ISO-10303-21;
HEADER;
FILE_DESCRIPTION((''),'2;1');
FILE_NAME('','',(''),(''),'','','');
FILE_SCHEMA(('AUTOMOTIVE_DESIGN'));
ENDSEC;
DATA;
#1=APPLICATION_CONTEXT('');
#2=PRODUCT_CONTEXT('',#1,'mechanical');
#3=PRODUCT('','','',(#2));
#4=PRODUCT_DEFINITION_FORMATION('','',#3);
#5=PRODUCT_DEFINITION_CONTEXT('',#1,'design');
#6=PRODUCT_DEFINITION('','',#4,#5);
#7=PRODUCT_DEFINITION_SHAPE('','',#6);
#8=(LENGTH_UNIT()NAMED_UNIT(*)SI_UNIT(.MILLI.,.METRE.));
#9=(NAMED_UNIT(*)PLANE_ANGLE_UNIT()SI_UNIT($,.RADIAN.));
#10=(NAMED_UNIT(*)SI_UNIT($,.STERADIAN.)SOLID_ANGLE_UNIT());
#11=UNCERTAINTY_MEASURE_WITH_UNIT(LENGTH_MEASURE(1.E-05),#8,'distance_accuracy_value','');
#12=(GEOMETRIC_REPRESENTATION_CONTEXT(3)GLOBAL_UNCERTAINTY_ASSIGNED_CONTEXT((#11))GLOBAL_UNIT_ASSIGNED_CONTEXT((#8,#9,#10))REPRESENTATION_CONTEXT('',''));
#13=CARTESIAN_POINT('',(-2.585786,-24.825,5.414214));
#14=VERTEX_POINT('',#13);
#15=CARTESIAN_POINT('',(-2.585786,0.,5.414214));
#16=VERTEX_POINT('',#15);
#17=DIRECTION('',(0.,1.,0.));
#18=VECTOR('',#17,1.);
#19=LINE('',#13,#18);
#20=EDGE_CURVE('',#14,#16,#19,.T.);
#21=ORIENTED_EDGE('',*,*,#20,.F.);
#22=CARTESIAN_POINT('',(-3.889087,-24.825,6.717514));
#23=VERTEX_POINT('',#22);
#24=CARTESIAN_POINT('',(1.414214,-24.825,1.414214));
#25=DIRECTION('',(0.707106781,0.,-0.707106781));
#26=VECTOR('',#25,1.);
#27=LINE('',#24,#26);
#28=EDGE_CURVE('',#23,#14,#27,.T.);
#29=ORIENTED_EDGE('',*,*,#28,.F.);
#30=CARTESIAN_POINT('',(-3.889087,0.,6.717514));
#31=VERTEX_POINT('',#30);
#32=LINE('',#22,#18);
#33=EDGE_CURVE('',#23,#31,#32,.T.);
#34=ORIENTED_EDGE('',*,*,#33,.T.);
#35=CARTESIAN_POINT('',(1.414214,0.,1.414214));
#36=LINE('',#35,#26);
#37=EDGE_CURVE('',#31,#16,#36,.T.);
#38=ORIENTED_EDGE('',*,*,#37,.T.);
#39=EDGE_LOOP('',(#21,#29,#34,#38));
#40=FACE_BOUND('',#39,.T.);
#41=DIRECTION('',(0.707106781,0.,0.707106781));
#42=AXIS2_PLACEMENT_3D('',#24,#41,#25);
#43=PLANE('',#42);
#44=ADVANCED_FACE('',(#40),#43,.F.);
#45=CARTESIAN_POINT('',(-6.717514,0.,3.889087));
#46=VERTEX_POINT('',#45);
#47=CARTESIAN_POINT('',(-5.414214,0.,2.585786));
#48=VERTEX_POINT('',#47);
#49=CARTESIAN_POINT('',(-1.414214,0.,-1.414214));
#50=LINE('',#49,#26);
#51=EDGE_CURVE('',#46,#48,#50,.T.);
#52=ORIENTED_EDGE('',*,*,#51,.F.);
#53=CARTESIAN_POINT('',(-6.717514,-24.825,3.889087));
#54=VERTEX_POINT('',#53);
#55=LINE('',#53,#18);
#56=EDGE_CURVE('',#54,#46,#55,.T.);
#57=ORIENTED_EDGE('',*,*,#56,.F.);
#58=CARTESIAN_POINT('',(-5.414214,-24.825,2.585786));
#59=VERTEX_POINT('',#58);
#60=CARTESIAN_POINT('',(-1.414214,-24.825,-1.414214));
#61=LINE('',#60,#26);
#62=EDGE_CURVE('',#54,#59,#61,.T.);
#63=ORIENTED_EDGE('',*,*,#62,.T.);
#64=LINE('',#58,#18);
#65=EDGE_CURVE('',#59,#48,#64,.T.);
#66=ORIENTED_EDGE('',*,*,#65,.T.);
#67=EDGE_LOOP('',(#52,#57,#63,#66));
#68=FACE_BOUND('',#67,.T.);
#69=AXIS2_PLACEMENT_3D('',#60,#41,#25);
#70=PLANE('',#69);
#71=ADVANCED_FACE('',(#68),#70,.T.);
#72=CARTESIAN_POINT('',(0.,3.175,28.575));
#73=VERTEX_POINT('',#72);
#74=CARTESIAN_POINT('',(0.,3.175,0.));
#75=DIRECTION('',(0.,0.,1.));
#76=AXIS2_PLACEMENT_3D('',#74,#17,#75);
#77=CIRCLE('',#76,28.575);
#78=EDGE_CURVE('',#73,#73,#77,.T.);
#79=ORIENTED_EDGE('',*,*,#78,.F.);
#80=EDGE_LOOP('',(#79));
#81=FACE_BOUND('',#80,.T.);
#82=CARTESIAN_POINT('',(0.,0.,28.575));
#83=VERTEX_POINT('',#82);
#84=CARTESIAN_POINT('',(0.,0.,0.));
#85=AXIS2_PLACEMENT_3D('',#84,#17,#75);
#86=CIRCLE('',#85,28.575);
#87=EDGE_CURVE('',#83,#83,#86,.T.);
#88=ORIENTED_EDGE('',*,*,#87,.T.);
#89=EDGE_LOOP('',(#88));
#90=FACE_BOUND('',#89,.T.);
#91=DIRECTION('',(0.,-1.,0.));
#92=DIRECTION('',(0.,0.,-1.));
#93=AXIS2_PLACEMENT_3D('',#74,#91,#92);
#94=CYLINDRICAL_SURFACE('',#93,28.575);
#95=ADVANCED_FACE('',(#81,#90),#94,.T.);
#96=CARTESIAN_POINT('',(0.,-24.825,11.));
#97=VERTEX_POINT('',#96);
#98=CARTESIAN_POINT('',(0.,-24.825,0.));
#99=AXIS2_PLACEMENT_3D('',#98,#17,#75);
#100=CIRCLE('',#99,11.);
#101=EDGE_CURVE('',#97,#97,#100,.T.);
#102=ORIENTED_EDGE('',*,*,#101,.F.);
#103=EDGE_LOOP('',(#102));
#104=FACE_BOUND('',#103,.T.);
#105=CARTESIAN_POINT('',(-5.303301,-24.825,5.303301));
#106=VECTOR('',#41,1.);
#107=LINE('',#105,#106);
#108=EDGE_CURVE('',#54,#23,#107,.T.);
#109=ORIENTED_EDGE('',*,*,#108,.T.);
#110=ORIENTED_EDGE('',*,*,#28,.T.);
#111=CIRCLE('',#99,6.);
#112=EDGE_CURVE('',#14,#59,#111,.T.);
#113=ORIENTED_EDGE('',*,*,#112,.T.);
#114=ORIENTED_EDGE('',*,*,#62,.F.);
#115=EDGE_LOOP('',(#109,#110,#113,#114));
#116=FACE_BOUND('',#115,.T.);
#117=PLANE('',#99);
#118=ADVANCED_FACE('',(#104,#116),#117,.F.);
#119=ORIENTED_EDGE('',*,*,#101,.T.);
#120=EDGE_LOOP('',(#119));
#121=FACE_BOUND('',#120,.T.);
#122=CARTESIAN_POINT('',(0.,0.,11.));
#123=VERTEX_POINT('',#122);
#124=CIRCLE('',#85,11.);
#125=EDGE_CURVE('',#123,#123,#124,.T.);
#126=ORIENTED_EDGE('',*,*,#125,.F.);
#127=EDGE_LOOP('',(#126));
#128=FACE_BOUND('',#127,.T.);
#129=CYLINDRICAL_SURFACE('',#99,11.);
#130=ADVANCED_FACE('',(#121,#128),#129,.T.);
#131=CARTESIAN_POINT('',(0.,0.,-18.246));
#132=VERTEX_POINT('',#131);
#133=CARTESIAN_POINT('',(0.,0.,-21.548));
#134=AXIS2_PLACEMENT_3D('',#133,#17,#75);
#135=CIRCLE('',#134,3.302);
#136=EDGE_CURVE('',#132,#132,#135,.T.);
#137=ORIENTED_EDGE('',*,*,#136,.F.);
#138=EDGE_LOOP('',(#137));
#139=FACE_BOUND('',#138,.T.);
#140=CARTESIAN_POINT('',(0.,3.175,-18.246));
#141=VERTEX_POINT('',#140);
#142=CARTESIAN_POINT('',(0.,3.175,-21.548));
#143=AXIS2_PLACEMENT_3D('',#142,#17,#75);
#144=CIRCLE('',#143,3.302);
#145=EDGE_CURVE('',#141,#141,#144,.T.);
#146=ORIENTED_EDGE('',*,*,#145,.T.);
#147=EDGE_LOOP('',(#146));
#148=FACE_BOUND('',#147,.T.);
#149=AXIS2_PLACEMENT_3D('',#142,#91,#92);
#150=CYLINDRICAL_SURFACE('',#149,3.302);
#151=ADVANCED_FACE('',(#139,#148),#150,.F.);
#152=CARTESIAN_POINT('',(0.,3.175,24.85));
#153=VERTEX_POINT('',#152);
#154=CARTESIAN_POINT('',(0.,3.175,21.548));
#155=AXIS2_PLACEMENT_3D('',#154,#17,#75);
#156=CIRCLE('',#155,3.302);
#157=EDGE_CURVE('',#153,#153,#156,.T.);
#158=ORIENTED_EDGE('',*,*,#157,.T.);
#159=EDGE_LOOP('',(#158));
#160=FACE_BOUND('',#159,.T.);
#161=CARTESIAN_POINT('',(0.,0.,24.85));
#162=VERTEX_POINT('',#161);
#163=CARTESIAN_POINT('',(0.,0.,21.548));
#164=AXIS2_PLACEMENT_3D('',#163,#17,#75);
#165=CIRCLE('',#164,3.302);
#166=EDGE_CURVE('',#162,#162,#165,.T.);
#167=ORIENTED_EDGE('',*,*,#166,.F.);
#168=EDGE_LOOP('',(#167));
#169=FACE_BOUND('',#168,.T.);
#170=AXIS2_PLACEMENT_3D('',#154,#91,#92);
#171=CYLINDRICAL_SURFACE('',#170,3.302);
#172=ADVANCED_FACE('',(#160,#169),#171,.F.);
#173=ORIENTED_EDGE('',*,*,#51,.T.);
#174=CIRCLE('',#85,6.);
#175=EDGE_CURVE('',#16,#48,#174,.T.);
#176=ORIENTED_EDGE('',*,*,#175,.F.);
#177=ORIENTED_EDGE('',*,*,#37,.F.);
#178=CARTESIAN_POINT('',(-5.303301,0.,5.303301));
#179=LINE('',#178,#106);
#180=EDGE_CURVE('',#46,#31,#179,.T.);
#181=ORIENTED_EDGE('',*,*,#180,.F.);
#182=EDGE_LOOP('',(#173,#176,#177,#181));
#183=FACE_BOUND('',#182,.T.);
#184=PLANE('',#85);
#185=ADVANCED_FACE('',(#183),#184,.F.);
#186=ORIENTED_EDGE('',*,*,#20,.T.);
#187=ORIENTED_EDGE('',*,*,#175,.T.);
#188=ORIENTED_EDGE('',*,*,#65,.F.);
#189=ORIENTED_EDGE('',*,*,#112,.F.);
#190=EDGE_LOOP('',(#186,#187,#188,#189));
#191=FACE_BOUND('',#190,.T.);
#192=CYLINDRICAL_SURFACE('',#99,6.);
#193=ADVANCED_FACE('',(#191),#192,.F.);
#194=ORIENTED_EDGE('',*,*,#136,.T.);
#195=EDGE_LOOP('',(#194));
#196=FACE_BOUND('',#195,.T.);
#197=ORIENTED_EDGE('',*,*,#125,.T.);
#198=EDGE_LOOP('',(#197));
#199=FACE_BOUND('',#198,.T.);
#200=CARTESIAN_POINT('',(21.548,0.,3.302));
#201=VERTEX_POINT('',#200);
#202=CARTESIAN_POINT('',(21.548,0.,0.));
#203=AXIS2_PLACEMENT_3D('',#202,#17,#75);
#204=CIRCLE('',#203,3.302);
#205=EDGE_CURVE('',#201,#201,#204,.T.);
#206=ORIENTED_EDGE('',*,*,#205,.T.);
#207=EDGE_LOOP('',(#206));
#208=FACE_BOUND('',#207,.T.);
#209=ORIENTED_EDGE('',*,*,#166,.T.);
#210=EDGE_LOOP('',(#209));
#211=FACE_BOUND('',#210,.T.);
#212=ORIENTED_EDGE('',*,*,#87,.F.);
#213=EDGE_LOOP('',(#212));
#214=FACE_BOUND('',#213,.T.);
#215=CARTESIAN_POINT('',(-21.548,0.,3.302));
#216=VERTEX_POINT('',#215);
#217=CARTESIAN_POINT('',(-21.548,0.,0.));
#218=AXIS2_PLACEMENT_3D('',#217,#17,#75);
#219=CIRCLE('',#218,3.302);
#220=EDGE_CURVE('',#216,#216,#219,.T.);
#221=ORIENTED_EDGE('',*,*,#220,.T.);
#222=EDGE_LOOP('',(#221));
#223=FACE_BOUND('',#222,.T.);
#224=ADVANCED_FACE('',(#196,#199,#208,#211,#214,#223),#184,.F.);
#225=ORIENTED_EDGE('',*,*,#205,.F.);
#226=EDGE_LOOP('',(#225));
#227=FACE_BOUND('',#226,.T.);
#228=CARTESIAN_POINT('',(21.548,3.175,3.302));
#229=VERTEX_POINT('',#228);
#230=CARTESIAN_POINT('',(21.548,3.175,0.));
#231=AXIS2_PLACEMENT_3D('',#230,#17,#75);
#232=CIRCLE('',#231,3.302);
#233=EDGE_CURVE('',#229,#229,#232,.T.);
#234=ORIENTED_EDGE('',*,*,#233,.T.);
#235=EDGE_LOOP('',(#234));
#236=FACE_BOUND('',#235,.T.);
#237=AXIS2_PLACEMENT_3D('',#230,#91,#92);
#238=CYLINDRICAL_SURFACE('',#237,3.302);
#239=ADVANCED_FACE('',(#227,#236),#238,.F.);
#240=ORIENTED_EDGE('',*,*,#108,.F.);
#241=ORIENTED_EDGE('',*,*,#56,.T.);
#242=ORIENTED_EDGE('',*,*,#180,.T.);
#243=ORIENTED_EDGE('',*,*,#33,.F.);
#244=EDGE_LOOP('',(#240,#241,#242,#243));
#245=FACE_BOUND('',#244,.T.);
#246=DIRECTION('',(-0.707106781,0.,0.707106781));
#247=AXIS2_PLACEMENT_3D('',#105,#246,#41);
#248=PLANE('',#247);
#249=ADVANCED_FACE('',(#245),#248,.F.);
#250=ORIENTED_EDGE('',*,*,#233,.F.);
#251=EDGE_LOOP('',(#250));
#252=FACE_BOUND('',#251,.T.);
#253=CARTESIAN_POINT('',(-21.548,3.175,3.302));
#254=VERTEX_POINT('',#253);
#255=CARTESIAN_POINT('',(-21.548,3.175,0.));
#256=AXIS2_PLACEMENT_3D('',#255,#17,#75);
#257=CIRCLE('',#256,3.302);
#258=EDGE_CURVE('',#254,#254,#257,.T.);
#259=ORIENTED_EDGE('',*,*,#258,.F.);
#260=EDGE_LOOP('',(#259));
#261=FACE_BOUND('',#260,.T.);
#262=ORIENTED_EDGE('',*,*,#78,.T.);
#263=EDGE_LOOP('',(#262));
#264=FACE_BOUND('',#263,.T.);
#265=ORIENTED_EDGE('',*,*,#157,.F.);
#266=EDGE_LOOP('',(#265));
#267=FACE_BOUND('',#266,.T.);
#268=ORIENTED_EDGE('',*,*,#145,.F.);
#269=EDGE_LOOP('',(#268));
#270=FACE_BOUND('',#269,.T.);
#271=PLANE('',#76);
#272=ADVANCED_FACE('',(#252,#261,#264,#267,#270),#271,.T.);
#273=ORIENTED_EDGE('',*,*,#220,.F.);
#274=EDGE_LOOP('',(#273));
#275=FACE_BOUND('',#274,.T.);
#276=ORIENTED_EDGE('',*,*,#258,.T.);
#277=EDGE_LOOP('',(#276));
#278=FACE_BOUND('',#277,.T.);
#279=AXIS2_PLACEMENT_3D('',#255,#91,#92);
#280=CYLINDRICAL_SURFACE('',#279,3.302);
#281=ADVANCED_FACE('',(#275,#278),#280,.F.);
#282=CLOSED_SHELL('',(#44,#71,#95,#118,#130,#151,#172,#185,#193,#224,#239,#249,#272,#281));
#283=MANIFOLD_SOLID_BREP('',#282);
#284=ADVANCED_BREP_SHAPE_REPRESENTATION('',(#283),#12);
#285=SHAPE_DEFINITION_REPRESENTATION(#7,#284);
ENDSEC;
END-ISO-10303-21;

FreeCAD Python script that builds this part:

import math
import FreeCAD as App
import Part
import Sketcher
from FreeCAD import Vector
Q = App.Units.Quantity

doc = App.newDocument("Part")
params = doc.addObject("Spreadsheet::Sheet", "Params")
for row, (alias, value) in enumerate([
    ("sketch1_diameter", "22 mm"),
    ("sketch1_diameter2", "57.15 mm"),
    ("pad1_length", "3.175 mm"),
    ("sketch2_diameter", "22 mm"),
    ("pad2_length", "3.175 mm"),
    ("sketch3_diameter", "22 mm"),
    ("sketch3_radius", "6 mm"),
    ("sketch3_length", "4 mm"),
    ("pad3_length", "24.825 mm"),
], start=1):
    params.set(f"A{row}", alias)
    params.set(f"B{row}", "=" + value)
    params.setAlias(f"B{row}", alias)

body = doc.addObject("PartDesign::Body", "Body")

sketch1 = body.newObject("Sketcher::SketchObject", "Sketch")
sketch1.AttachmentSupport = (doc.getObject("XZ_Plane"), [""])
sketch1.MapMode = "FlatFace"
sketch1.addGeometry(Part.Circle(Vector(0, 0, 0), Vector(0, 0, 1), 28.6), False)
sketch1.addGeometry(Part.Circle(Vector(0, 21.5, 0), Vector(0, 0, 1), 3.3), False)
sketch1.addGeometry(Part.Circle(Vector(-21.5, 0, 0), Vector(0, 0, 1), 3.3), False)
sketch1.addGeometry(Part.Circle(Vector(0, 0, 0), Vector(0, 0, 1), 11), False)
sketch1.addGeometry(Part.Circle(Vector(21.5, 0, 0), Vector(0, 0, 1), 3.3), False)
sketch1.addGeometry(Part.Circle(Vector(0, -21.5, 0), Vector(0, 0, 1), 3.3), False)
sketch1.addConstraint(Sketcher.Constraint("Coincident", 0, 3, -1, 1))
sketch1.addConstraint(Sketcher.Constraint("Coincident", 3, 3, -1, 1))
sketch1.addConstraint(Sketcher.Constraint("Equal", 1, 2))
sketch1.addConstraint(Sketcher.Constraint("Equal", 2, 4))
sketch1.addConstraint(Sketcher.Constraint("Equal", 4, 5))
sketch1.addConstraint(Sketcher.Constraint("Symmetric", 2, 3, 4, 3, -1, 1))
sketch1.addConstraint(Sketcher.Constraint("Symmetric", 1, 3, 5, 3, -1, 1))
sketch1.addConstraint(Sketcher.Constraint("PointOnObject", 1, 3, -2))
sketch1.addConstraint(Sketcher.Constraint("PointOnObject", 2, 3, -1))
sketch1.addConstraint(Sketcher.Constraint("Diameter", 3, 22.0))
sketch1.addConstraint(Sketcher.Constraint("Diameter", 0, 57.15))
sketch1.addConstraint(Sketcher.Constraint("Diameter", 1, 6.604))
sketch1.addConstraint(Sketcher.Constraint("DistanceY", -1, 1, 1, 3, 21.548))
sketch1.addConstraint(Sketcher.Constraint("DistanceX", 2, 3, -1, 1, 21.548))
sketch1.setExpression("Constraints[9]", "Params.sketch1_diameter")
sketch1.setExpression("Constraints[10]", "Params.sketch1_diameter2")
pad1 = body.newObject("PartDesign::Pad", "Pad")
pad1.Profile = sketch1
pad1.setExpression("Length", "Params.pad1_length")
pad1.Reversed = True

sketch2 = body.newObject("Sketcher::SketchObject", "Sketch001")
sketch2.AttachmentSupport = (doc.getObject("XZ_Plane"), [""])
sketch2.MapMode = "FlatFace"
sketch2.addGeometry(Part.Circle(Vector(0, 0, 0), Vector(0, 0, 1), 11), False)
sketch2.addConstraint(Sketcher.Constraint("Coincident", 0, 3, -1, 1))
sketch2.addConstraint(Sketcher.Constraint("Diameter", 0, 22.0))
sketch2.setExpression("Constraints[1]", "Params.sketch2_diameter")
pad2 = body.newObject("PartDesign::Pad", "Pad001")
pad2.Profile = sketch2
pad2.setExpression("Length", "Params.pad2_length")
pad2.Reversed = True

sketch3 = body.newObject("Sketcher::SketchObject", "Sketch002")
sketch3.AttachmentSupport = (doc.getObject("XZ_Plane"), [""])
sketch3.MapMode = "FlatFace"
sketch3.addGeometry(Part.Circle(Vector(0, 0, 0), Vector(0, 0, 1), 11), False)
sketch3.addGeometry(Part.LineSegment(Vector(-6.7, 3.9, 0), Vector(-5.4, 2.6, 0)), False)
sketch3.addGeometry(Part.ArcOfCircle(Part.Circle(Vector(0, 0, 0), Vector(0, 0, 1), 6), math.radians(154), math.radians(360)), False)
sketch3.addGeometry(Part.ArcOfCircle(Part.Circle(Vector(0, 0, 0), Vector(0, 0, 1), 6), math.radians(0), math.radians(116)), False)
sketch3.addGeometry(Part.LineSegment(Vector(-2.6, 5.4, 0), Vector(-3.9, 6.7, 0)), False)
sketch3.addGeometry(Part.LineSegment(Vector(-3.9, 6.7, 0), Vector(-6.7, 3.9, 0)), False)
sketch3.addConstraint(Sketcher.Constraint("Coincident", 1, 2, 2, 1))
sketch3.addConstraint(Sketcher.Constraint("Tangent", 2, 2, 3, 1))
sketch3.addConstraint(Sketcher.Constraint("Coincident", 3, 2, 4, 1))
sketch3.addConstraint(Sketcher.Constraint("Coincident", 4, 2, 5, 1))
sketch3.addConstraint(Sketcher.Constraint("Coincident", 5, 2, 1, 1))
sketch3.addConstraint(Sketcher.Constraint("Coincident", 0, 3, -1, 1))
sketch3.addConstraint(Sketcher.Constraint("Coincident", 2, 3, -1, 1))
sketch3.addConstraint(Sketcher.Constraint("Equal", 2, 3))
sketch3.addConstraint(Sketcher.Constraint("PointOnObject", 2, 2, -1))
sketch3.addConstraint(Sketcher.Constraint("Parallel", 1, 4))
sketch3.addConstraint(Sketcher.Constraint("Perpendicular", 4, 5))
sketch3.addConstraint(Sketcher.Constraint("Equal", 1, 4))
sketch3.addConstraint(Sketcher.Constraint("Diameter", 0, 22.0))
sketch3.addConstraint(Sketcher.Constraint("Radius", 2, 6.0))
sketch3.addConstraint(Sketcher.Constraint("Angle", 1, Q("-45 deg")))
sketch3.addConstraint(Sketcher.Constraint("Distance", 5, 4.0))
sketch3.addConstraint(Sketcher.Constraint("DistanceX", 4, 2, 3, 2, 1.303301))
sketch3.setExpression("Constraints[12]", "Params.sketch3_diameter")
sketch3.setExpression("Constraints[13]", "Params.sketch3_radius")
sketch3.setExpression("Constraints[15]", "Params.sketch3_length")
pad3 = body.newObject("PartDesign::Pad", "Pad002")
pad3.Profile = sketch3
pad3.setExpression("Length", "Params.pad3_length")

doc.recompute()
